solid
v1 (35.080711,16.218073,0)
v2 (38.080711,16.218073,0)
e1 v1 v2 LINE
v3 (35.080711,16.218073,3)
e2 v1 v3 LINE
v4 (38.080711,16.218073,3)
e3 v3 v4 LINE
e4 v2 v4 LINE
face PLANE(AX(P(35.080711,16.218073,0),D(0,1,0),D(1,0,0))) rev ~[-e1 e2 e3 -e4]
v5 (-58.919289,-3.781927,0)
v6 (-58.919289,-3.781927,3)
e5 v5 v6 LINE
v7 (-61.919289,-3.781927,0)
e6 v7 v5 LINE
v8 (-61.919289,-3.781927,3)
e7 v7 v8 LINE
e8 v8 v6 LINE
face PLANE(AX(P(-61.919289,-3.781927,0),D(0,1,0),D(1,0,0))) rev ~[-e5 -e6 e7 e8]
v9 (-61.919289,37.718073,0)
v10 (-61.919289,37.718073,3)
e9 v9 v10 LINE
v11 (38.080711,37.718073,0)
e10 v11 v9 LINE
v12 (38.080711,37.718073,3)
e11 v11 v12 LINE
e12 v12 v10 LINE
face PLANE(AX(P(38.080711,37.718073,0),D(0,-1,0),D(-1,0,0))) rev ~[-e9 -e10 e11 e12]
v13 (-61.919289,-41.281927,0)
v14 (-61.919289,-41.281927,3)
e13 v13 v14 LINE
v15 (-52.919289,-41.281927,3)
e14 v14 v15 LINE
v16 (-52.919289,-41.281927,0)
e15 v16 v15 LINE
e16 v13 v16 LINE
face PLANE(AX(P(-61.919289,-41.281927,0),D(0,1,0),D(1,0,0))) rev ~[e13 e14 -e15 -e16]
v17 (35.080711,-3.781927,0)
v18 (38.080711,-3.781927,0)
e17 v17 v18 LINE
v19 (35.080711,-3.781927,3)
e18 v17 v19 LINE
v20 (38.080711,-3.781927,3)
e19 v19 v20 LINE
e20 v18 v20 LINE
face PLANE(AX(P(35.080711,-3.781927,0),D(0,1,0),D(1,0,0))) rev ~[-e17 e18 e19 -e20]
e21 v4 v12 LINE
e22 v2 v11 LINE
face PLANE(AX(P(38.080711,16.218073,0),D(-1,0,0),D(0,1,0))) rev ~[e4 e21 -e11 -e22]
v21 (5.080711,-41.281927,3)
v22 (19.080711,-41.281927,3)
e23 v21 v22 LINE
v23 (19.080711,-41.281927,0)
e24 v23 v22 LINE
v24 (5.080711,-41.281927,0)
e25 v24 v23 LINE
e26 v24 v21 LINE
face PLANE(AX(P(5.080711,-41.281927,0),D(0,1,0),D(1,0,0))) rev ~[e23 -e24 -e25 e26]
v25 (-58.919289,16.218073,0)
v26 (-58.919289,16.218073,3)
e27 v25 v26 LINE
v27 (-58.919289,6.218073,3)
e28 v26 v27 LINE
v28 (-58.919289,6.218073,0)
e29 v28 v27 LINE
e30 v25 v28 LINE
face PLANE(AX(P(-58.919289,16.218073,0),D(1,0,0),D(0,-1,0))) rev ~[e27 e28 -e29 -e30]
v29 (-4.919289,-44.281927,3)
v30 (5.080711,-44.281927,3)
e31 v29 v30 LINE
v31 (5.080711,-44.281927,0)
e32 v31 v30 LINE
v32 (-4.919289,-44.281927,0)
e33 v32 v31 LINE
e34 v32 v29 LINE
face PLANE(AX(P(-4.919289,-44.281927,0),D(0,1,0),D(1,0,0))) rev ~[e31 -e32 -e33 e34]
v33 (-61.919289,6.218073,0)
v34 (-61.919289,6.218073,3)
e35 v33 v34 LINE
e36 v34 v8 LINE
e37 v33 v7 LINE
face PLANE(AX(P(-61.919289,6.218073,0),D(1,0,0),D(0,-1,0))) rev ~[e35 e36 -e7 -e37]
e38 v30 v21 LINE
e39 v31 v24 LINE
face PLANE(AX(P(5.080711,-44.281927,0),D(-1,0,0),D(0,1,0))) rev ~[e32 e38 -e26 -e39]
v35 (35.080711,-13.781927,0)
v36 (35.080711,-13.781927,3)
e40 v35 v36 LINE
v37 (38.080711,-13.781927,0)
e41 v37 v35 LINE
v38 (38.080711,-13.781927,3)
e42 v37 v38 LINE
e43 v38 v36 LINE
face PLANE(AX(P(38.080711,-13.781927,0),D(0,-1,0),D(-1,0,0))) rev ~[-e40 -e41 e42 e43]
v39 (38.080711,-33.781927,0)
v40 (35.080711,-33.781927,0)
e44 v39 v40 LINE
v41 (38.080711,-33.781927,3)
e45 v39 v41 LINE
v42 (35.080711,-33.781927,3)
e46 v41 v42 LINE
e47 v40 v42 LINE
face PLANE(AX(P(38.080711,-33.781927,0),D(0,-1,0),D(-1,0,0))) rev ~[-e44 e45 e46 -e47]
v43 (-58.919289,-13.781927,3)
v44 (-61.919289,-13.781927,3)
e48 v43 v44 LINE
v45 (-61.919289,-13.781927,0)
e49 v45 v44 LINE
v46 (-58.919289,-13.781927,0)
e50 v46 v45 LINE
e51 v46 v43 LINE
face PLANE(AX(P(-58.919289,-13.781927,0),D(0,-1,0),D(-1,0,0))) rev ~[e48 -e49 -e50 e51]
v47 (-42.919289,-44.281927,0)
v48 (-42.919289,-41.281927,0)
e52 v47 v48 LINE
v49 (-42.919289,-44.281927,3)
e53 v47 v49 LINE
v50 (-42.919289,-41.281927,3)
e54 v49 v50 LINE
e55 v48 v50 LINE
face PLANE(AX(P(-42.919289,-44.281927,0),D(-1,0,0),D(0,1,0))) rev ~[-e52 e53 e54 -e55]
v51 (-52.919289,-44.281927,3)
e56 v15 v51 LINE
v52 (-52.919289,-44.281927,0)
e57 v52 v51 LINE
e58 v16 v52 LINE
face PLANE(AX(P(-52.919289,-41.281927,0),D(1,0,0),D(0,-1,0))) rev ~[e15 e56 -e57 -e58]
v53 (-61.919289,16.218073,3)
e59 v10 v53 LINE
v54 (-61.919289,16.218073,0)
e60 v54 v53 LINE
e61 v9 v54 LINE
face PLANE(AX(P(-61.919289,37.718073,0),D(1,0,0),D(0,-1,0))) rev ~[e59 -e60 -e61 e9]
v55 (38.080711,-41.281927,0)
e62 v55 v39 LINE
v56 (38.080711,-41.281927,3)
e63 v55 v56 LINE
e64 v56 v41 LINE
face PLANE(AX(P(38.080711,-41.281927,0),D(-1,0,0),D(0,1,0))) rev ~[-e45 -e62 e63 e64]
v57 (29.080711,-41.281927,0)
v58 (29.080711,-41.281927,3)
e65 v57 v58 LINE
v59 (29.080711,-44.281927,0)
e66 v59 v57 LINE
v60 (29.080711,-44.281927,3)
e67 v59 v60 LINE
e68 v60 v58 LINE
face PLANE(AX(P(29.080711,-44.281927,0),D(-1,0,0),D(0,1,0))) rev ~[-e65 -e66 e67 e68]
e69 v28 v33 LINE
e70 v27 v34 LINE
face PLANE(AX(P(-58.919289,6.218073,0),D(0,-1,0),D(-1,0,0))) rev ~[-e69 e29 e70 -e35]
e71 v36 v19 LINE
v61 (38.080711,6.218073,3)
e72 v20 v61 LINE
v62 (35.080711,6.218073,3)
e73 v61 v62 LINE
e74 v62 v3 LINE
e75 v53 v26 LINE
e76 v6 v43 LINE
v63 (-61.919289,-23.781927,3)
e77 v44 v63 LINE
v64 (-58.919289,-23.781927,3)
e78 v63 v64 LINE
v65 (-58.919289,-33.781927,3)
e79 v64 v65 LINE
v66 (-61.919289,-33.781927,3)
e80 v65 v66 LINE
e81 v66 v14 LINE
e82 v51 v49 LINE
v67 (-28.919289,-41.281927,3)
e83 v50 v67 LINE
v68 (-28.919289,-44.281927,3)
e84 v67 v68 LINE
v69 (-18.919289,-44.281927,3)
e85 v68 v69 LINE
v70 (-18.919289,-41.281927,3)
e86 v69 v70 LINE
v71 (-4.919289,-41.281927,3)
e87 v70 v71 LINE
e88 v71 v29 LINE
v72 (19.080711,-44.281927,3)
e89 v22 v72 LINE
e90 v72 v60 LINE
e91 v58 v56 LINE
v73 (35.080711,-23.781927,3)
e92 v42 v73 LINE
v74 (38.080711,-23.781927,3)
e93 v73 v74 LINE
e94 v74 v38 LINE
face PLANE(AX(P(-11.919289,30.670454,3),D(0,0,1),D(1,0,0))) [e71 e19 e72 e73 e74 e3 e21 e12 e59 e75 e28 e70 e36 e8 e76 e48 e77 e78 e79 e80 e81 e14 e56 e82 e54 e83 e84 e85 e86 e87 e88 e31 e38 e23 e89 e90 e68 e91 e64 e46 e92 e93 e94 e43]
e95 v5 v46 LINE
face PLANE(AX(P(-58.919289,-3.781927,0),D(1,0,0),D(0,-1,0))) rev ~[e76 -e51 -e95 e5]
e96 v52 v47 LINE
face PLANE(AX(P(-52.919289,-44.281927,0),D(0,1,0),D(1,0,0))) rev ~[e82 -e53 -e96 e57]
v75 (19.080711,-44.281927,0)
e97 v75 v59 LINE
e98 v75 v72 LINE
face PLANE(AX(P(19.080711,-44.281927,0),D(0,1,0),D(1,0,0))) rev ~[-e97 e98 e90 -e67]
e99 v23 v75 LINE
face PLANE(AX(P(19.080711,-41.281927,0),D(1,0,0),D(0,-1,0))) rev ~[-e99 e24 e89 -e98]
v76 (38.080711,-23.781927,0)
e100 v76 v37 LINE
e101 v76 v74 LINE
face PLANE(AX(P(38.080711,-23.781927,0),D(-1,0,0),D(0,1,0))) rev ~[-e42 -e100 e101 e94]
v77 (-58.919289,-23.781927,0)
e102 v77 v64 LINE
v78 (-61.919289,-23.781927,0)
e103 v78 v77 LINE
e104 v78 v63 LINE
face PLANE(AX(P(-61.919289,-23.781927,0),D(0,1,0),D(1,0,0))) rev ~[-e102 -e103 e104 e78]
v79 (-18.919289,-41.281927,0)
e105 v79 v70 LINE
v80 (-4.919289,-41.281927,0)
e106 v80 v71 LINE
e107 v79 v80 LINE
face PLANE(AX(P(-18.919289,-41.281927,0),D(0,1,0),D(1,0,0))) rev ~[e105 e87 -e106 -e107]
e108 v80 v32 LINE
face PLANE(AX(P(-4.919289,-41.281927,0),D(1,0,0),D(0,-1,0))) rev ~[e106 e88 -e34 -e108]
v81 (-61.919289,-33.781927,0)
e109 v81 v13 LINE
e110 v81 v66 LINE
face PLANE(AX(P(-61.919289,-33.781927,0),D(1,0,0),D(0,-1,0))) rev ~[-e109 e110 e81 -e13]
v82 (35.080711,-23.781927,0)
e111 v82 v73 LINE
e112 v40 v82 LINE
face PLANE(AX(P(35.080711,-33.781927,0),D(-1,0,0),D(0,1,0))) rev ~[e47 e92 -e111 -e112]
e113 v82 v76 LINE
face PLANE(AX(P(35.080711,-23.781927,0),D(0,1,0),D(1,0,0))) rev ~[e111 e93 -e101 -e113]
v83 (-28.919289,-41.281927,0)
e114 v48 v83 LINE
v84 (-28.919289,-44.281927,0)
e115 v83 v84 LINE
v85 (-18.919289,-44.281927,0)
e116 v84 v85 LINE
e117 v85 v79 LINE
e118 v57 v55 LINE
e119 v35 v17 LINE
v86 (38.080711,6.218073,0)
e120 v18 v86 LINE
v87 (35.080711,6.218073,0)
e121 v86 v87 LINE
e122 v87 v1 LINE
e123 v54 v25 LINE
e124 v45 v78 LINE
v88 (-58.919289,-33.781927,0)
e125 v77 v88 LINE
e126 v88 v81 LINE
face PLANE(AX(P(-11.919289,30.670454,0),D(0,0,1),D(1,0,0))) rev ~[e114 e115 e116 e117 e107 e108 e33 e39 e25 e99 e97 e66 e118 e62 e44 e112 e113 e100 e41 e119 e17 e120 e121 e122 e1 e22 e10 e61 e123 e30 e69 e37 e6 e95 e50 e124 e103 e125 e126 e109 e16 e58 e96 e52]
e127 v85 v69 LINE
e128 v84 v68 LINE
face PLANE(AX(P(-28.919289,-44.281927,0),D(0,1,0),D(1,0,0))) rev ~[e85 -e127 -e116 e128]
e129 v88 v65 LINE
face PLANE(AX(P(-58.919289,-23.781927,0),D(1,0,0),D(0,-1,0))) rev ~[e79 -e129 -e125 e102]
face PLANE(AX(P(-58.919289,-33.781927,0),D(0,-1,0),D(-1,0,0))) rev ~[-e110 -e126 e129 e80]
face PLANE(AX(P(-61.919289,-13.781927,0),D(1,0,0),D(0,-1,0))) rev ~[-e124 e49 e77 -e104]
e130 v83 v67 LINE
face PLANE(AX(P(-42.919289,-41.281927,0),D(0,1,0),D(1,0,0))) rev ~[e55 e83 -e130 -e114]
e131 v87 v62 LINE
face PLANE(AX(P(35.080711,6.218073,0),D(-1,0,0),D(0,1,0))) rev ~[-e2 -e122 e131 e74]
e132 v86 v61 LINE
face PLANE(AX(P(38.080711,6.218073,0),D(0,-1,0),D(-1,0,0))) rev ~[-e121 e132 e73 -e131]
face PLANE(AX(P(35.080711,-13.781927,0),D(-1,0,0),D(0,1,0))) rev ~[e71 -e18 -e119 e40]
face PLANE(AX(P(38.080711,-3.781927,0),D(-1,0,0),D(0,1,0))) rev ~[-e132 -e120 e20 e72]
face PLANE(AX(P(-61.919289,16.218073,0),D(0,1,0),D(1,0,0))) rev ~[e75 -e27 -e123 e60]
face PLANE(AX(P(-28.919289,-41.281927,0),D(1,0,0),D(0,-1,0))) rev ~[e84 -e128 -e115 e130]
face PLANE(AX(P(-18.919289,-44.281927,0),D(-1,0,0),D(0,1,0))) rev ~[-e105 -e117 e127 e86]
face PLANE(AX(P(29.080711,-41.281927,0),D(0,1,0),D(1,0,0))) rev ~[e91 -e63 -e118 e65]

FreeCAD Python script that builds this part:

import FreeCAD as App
import Part
import Sketcher

V = App.Vector
Q = App.Units.Quantity


def add_polygon(sketch, points):
    """Adds a closed chain of lines whose ends are joined by coincident constraints."""
    first, n = sketch.GeometryCount, len(points)
    for a, b in zip(points, points[1:] + points[:1]):
        sketch.addGeometry(Part.LineSegment(App.Vector(*a, 0), App.Vector(*b, 0)), False)
    for i in range(n):
        sketch.addConstraint(Sketcher.Constraint("Coincident", first + i, 2, first + (i + 1) % n, 1))

doc = App.newDocument("Part")
body = doc.addObject("PartDesign::Body", "Body")

sketch1 = body.newObject("Sketcher::SketchObject", "Sketch")
sketch1.AttachmentSupport = (doc.getObject("XY_Plane"), [""])
sketch1.MapMode = "FlatFace"
add_polygon(sketch1, [(38.080711, 37.718073), (-61.919289, 37.718073), (-61.919289, 16.218073), (-58.919289, 16.218073), (-58.919289, 6.218073), (-61.919289, 6.218073), (-61.919289, -3.781927), (-58.919289, -3.781927), (-58.919289, -13.781927), (-61.919289, -13.781927), (-61.919289, -23.781927), (-58.919289, -23.781927), (-58.919289, -33.781927), (-61.919289, -33.781927), (-61.919289, -41.281927), (-52.919289, -41.281927), (-52.919289, -44.281927), (-42.919289, -44.281927), (-42.919289, -41.281927), (-28.919289, -41.281927), (-28.919289, -44.281927), (-18.919289, -44.281927), (-18.919289, -41.281927), (-4.919289, -41.281927), (-4.919289, -44.281927), (5.080711, -44.281927), (5.080711, -41.281927), (19.080711, -41.281927), (19.080711, -44.281927), (29.080711, -44.281927), (29.080711, -41.281927), (38.080711, -41.281927), (38.080711, -33.781927), (35.080711, -33.781927), (35.080711, -23.781927), (38.080711, -23.781927), (38.080711, -13.781927), (35.080711, -13.781927), (35.080711, -3.781927), (38.080711, -3.781927), (38.080711, 6.218073), (35.080711, 6.218073), (35.080711, 16.218073), (38.080711, 16.218073)])
sketch1.addConstraint([
    Sketcher.Constraint("Horizontal", 0),
    Sketcher.Constraint("Vertical", 1),
    Sketcher.Constraint("Horizontal", 2),
    Sketcher.Constraint("Vertical", 3),
    Sketcher.Constraint("Horizontal", 4),
    Sketcher.Constraint("Vertical", 5),
    Sketcher.Constraint("Horizontal", 6),
    Sketcher.Constraint("Vertical", 7),
    Sketcher.Constraint("Horizontal", 8),
    Sketcher.Constraint("Vertical", 9),
    Sketcher.Constraint("Horizontal", 10),
    Sketcher.Constraint("Vertical", 11),
    Sketcher.Constraint("Horizontal", 12),
    Sketcher.Constraint("Vertical", 13),
    Sketcher.Constraint("Horizontal", 14),
    Sketcher.Constraint("Vertical", 15),
    Sketcher.Constraint("Horizontal", 16),
    Sketcher.Constraint("Vertical", 17),
    Sketcher.Constraint("Horizontal", 18),
    Sketcher.Constraint("Vertical", 19),
    Sketcher.Constraint("Horizontal", 20),
    Sketcher.Constraint("Vertical", 21),
    Sketcher.Constraint("Horizontal", 22),
    Sketcher.Constraint("Vertical", 23),
    Sketcher.Constraint("Horizontal", 24),
    Sketcher.Constraint("Vertical", 25),
    Sketcher.Constraint("Horizontal", 26),
    Sketcher.Constraint("Vertical", 27),
    Sketcher.Constraint("Horizontal", 28),
    Sketcher.Constraint("Vertical", 29),
    Sketcher.Constraint("Horizontal", 30),
    Sketcher.Constraint("Vertical", 31),
    Sketcher.Constraint("Horizontal", 32),
    Sketcher.Constraint("Vertical", 33),
    Sketcher.Constraint("Horizontal", 34),
    Sketcher.Constraint("Vertical", 35),
    Sketcher.Constraint("Horizontal", 36),
    Sketcher.Constraint("Vertical", 37),
    Sketcher.Constraint("Horizontal", 38),
    Sketcher.Constraint("Vertical", 39),
    Sketcher.Constraint("Horizontal", 40),
    Sketcher.Constraint("Vertical", 41),
    Sketcher.Constraint("Horizontal", 42),
    Sketcher.Constraint("Vertical", 43),
    Sketcher.Constraint("Horizontal", 14, 2, 17, 2),
    Sketcher.Constraint("Horizontal", 16, 2, 19, 2),
    Sketcher.Constraint("Horizontal", 18, 2, 21, 2),
    Sketcher.Constraint("Horizontal", 20, 2, 23, 2),
    Sketcher.Constraint("Horizontal", 22, 2, 25, 2),
    Sketcher.Constraint("Horizontal", 24, 2, 27, 2),
    Sketcher.Constraint("Horizontal", 26, 2, 29, 2),
    Sketcher.Constraint("Horizontal", 12, 2, 31, 2),
    Sketcher.Constraint("Horizontal", 10, 2, 33, 2),
    Sketcher.Constraint("Horizontal", 8, 2, 35, 2),
    Sketcher.Constraint("Horizontal", 6, 2, 37, 2),
    Sketcher.Constraint("Horizontal", 4, 2, 39, 2),
    Sketcher.Constraint("Horizontal", 2, 2, 41, 2),
    Sketcher.Constraint("Vertical", 1, 2, 4, 2),
    Sketcher.Constraint("Vertical", 3, 2, 6, 2),
    Sketcher.Constraint("Vertical", 5, 2, 8, 2),
    Sketcher.Constraint("Vertical", 7, 2, 10, 2),
    Sketcher.Constraint("Vertical", 9, 2, 12, 2),
    Sketcher.Constraint("Vertical", 31, 2, 34, 2),
    Sketcher.Constraint("Vertical", 33, 2, 36, 2),
    Sketcher.Constraint("Vertical", 35, 2, 38, 2),
    Sketcher.Constraint("Vertical", 37, 2, 40, 2),
    Sketcher.Constraint("Vertical", 39, 2, 42, 2),
    Sketcher.Constraint("Equal", 16, 20),
    Sketcher.Constraint("Equal", 18, 22),
    Sketcher.Constraint("Equal", 20, 24),
    Sketcher.Constraint("Equal", 22, 26),
    Sketcher.Constraint("Equal", 24, 28),
    Sketcher.Constraint("Equal", 14, 30),
    Sketcher.Constraint("Equal", 12, 32),
    Sketcher.Constraint("Equal", 28, 3),
    Sketcher.Constraint("Equal", 3, 5),
    Sketcher.Constraint("Equal", 5, 7),
    Sketcher.Constraint("Equal", 7, 9),
    Sketcher.Constraint("Equal", 9, 11),
    Sketcher.Constraint("Equal", 42, 15),
    Sketcher.Constraint("DistanceX", 0, 2, 0, 1, Q("100 mm")),
    Sketcher.Constraint("DistanceX", 2, 1, 2, 2, Q("3 mm")),
    Sketcher.Constraint("DistanceX", 14, 1, 14, 2, Q("9 mm")),
    Sketcher.Constraint("DistanceX", 16, 1, 16, 2, Q("10 mm")),
    Sketcher.Constraint("DistanceY", 1, 2, 1, 1, Q("21.5 mm")),
    Sketcher.Constraint("DistanceY", 13, 2, 13, 1, Q("7.5 mm")),
    Sketcher.Constraint("DistanceX", 0, 2, -1, 1, Q("61.919289 mm")),
    Sketcher.Constraint("DistanceY", -1, 1, 0, 2, Q("37.718073 mm")),
])
pad1 = body.newObject("PartDesign::Pad", "Pad")
pad1.Profile = sketch1
pad1.Length = 3

doc.recompute()
